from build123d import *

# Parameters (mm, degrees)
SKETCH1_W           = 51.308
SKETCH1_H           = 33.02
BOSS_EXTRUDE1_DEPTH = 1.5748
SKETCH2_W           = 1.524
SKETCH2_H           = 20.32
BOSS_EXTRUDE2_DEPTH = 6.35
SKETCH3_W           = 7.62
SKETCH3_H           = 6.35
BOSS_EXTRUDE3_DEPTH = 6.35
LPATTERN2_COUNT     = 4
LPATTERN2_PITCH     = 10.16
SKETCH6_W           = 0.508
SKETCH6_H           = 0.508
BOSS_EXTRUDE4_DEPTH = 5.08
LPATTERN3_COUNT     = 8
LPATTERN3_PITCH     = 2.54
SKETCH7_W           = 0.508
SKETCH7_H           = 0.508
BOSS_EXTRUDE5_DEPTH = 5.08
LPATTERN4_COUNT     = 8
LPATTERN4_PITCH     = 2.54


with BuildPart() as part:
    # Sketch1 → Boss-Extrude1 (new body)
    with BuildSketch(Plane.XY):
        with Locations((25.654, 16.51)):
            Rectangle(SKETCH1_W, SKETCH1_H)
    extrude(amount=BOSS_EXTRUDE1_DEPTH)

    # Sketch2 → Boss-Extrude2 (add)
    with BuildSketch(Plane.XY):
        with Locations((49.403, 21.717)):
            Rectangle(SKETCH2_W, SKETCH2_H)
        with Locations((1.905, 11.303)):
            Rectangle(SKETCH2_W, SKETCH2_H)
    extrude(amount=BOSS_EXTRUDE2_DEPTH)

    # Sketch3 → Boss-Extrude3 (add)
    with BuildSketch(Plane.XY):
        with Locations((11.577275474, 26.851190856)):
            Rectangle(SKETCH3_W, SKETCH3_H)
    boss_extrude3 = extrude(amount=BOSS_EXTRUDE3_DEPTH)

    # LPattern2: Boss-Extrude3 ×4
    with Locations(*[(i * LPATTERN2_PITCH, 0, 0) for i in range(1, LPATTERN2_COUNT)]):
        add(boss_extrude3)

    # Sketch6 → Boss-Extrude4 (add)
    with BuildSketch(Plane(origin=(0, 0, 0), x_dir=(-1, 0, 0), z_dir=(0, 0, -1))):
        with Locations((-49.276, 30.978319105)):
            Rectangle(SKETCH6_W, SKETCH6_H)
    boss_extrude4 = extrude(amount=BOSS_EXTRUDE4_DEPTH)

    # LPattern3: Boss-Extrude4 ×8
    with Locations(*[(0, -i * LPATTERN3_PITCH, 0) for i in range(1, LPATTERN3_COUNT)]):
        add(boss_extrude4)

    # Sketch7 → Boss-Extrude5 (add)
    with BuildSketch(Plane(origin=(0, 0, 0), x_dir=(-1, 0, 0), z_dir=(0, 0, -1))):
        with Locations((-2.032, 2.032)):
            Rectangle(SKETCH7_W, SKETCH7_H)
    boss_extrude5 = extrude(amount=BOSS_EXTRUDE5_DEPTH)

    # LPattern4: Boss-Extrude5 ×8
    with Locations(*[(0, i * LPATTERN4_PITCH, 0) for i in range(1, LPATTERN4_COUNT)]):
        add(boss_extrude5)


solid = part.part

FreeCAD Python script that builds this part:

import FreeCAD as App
import Part
import Sketcher
from FreeCAD import Vector
Q = App.Units.Quantity


def add_polygon(sketch, points):
    """Adds a closed chain of lines whose ends are joined by coincident constraints."""
    first, n = sketch.GeometryCount, len(points)
    for a, b in zip(points, points[1:] + points[:1]):
        sketch.addGeometry(Part.LineSegment(App.Vector(*a, 0), App.Vector(*b, 0)), False)
    for i in range(n):
        sketch.addConstraint(Sketcher.Constraint("Coincident", first + i, 2, first + (i + 1) % n, 1))

doc = App.newDocument("Part")
params = doc.addObject("Spreadsheet::Sheet", "Params")
for row, (alias, value) in enumerate([
    ("sketch1_height", "1.3 in"),
    ("sketch1_width", "2.02 in"),
    ("pad1_length", "0.062 in"),
    ("sketch2_height", "0.8 in"),
    ("sketch2_width", "0.06 in"),
    ("pad2_length", "0.25 in"),
    ("sketch3_width", "0.3 in"),
    ("sketch3_height", "0.25 in"),
    ("pad3_length", "0.25 in"),
    ("linearpattern_pitch", "0.4 in"),
    ("sketch4_width", "0.02 in"),
    ("pad4_length", "0.2 in"),
    ("linearpattern2_pitch", "0.1 in"),
    ("sketch5_width", "0.02 in"),
    ("pad5_length", "0.2 in"),
    ("linearpattern3_pitch", "0.1 in"),
], start=1):
    params.set(f"A{row}", alias)
    params.set(f"B{row}", "=" + value)
    params.setAlias(f"B{row}", alias)

body = doc.addObject("PartDesign::Body", "Body")

# Sketch on XY plane
sketch1 = body.newObject("Sketcher::SketchObject", "Sketch")
sketch1.AttachmentSupport = (doc.getObject("XY_Plane"), [""])
sketch1.MapMode = "FlatFace"
add_polygon(sketch1, [(0, 33), (0, 0), (51, 0), (51, 33)])  # lines 0-3
sketch1.addConstraint([
    Sketcher.Constraint("Vertical", 0),
    Sketcher.Constraint("Horizontal", 1),
    Sketcher.Constraint("Vertical", 2),
    Sketcher.Constraint("Horizontal", 3),
    Sketcher.Constraint("Coincident", 0, 2, -1, 1),
    Sketcher.Constraint("DistanceY", 0, 2, 0, 1, Q("1.3 in")),
    Sketcher.Constraint("DistanceX", 1, 1, 1, 2, Q("2.02 in")),
])
sketch1.setExpression("Constraints[9]", "Params.sketch1_height")
sketch1.setExpression("Constraints[10]", "Params.sketch1_width")
pad1 = body.newObject("PartDesign::Pad", "Pad")
pad1.Profile = sketch1
pad1.setExpression("Length", "Params.pad1_length")

# Sketch on XY plane
sketch2 = body.newObject("Sketcher::SketchObject", "Sketch001")
sketch2.AttachmentSupport = (doc.getObject("XY_Plane"), [""])
sketch2.MapMode = "FlatFace"
add_polygon(sketch2, [(48.6, 31.9), (48.6, 11.6), (50.2, 11.6), (50.2, 31.9)])  # lines 0-3
add_polygon(sketch2, [(1.1, 21.5), (1.1, 1.1), (2.7, 1.1), (2.7, 21.5)])  # lines 4-7
sketch2.addConstraint([
    Sketcher.Constraint("Vertical", 0),
    Sketcher.Constraint("Horizontal", 1),
    Sketcher.Constraint("Vertical", 2),
    Sketcher.Constraint("Horizontal", 3),
    Sketcher.Constraint("Vertical", 4),
    Sketcher.Constraint("Horizontal", 5),
    Sketcher.Constraint("Vertical", 6),
    Sketcher.Constraint("Horizontal", 7),
    Sketcher.Constraint("Equal", 3, 5),
    Sketcher.Constraint("Equal", 2, 4),
    Sketcher.Constraint("DistanceY", 0, 2, 0, 1, Q("0.8 in")),
    Sketcher.Constraint("DistanceX", 1, 1, 1, 2, Q("0.06 in")),
    Sketcher.Constraint("DistanceX", 4, 2, 0, 2, Q("1.87 in")),
    Sketcher.Constraint("DistanceY", 4, 2, 0, 2, Q("0.41 in")),
    Sketcher.Constraint("DistanceX", -1, 1, 0, 2, Q("1.915 in")),
    Sketcher.Constraint("DistanceY", -1, 1, 0, 2, Q("0.455 in")),
])
sketch2.setExpression("Constraints[18]", "Params.sketch2_height")
sketch2.setExpression("Constraints[19]", "Params.sketch2_width")
pad2 = body.newObject("PartDesign::Pad", "Pad001")
pad2.Profile = sketch2
pad2.setExpression("Length", "Params.pad2_length")

# Sketch on XY plane
sketch3 = body.newObject("Sketcher::SketchObject", "Sketch002")
sketch3.AttachmentSupport = (doc.getObject("XY_Plane"), [""])
sketch3.MapMode = "FlatFace"
add_polygon(sketch3, [(8, 30), (8, 24), (15, 24), (15, 30)])  # lines 0-3
sketch3.addConstraint([
    Sketcher.Constraint("Vertical", 0),
    Sketcher.Constraint("Horizontal", 1),
    Sketcher.Constraint("Vertical", 2),
    Sketcher.Constraint("Horizontal", 3),
    Sketcher.Constraint("DistanceX", 1, 1, 1, 2, Q("0.3 in")),
    Sketcher.Constraint("DistanceY", 0, 2, 0, 1, Q("0.25 in")),
    Sketcher.Constraint("DistanceY", -1, 1, 0, 2, Q("23.676191 mm")),
    Sketcher.Constraint("DistanceX", -1, 1, 0, 2, Q("7.767275 mm")),
])
sketch3.setExpression("Constraints[8]", "Params.sketch3_width")
sketch3.setExpression("Constraints[9]", "Params.sketch3_height")
pad3 = body.newObject("PartDesign::Pad", "Pad002")
pad3.Profile = sketch3
pad3.setExpression("Length", "Params.pad3_length")
doc.recompute()

linearpattern = body.newObject("PartDesign::LinearPattern", "LinearPattern")
linearpattern.Originals = [pad3]
linearpattern.Direction = (doc.getObject("X_Axis"), [""])
linearpattern.Mode = "offset"
linearpattern.setExpression("Offset", "Params.linearpattern_pitch")
linearpattern.Occurrences = 4
body.Tip = linearpattern

# Sketch on XY plane
sketch4 = body.newObject("Sketcher::SketchObject", "Sketch003")
sketch4.AttachmentSupport = (doc.getObject("XY_Plane"), [""])
sketch4.MapMode = "FlatFace"
add_polygon(sketch4, [(49.5, 31.2), (49.5, 30.7), (49, 30.7), (49, 31.2)])  # lines 0-3
sketch4.addConstraint([
    Sketcher.Constraint("Vertical", 0),
    Sketcher.Constraint("Horizontal", 1),
    Sketcher.Constraint("Vertical", 2),
    Sketcher.Constraint("Horizontal", 3),
    Sketcher.Constraint("Equal", 3, 0),
    Sketcher.Constraint("DistanceX", 1, 2, 1, 1, Q("0.02 in")),
    Sketcher.Constraint("DistanceX", -1, 1, 0, 2, Q("1.95 in")),
    Sketcher.Constraint("DistanceY", -1, 1, 0, 2, Q("30.724319 mm")),
])
sketch4.setExpression("Constraints[9]", "Params.sketch4_width")
pad4 = body.newObject("PartDesign::Pad", "Pad003")
pad4.Profile = sketch4
pad4.setExpression("Length", "Params.pad4_length")
pad4.Reversed = True
doc.recompute()

linearpattern2 = body.newObject("PartDesign::LinearPattern", "LinearPattern001")
linearpattern2.Originals = [pad4]
linearpattern2.Direction = (doc.getObject("Y_Axis"), [""])
linearpattern2.Mode = "offset"
linearpattern2.setExpression("Offset", "Params.linearpattern2_pitch")
linearpattern2.Occurrences = 8
linearpattern2.Reversed = True
body.Tip = linearpattern2

# Sketch on XY plane
sketch5 = body.newObject("Sketcher::SketchObject", "Sketch004")
sketch5.AttachmentSupport = (doc.getObject("XY_Plane"), [""])
sketch5.MapMode = "FlatFace"
add_polygon(sketch5, [(2.3, 2.3), (2.3, 1.8), (1.8, 1.8), (1.8, 2.3)])  # lines 0-3
sketch5.addConstraint([
    Sketcher.Constraint("Vertical", 0),
    Sketcher.Constraint("Horizontal", 1),
    Sketcher.Constraint("Vertical", 2),
    Sketcher.Constraint("Horizontal", 3),
    Sketcher.Constraint("Equal", 3, 0),
    Sketcher.Constraint("DistanceX", 1, 2, 1, 1, Q("0.02 in")),
    Sketcher.Constraint("DistanceX", -1, 1, 0, 2, Q("0.09 in")),
    Sketcher.Constraint("DistanceY", -1, 1, 0, 2, Q("0.07 in")),
])
sketch5.setExpression("Constraints[9]", "Params.sketch5_width")
pad5 = body.newObject("PartDesign::Pad", "Pad004")
pad5.Profile = sketch5
pad5.setExpression("Length", "Params.pad5_length")
pad5.Reversed = True
doc.recompute()

linearpattern3 = body.newObject("PartDesign::LinearPattern", "LinearPattern002")
linearpattern3.Originals = [pad5]
linearpattern3.Direction = (doc.getObject("Y_Axis"), [""])
linearpattern3.Mode = "offset"
linearpattern3.setExpression("Offset", "Params.linearpattern3_pitch")
linearpattern3.Occurrences = 8
body.Tip = linearpattern3

doc.recompute()
